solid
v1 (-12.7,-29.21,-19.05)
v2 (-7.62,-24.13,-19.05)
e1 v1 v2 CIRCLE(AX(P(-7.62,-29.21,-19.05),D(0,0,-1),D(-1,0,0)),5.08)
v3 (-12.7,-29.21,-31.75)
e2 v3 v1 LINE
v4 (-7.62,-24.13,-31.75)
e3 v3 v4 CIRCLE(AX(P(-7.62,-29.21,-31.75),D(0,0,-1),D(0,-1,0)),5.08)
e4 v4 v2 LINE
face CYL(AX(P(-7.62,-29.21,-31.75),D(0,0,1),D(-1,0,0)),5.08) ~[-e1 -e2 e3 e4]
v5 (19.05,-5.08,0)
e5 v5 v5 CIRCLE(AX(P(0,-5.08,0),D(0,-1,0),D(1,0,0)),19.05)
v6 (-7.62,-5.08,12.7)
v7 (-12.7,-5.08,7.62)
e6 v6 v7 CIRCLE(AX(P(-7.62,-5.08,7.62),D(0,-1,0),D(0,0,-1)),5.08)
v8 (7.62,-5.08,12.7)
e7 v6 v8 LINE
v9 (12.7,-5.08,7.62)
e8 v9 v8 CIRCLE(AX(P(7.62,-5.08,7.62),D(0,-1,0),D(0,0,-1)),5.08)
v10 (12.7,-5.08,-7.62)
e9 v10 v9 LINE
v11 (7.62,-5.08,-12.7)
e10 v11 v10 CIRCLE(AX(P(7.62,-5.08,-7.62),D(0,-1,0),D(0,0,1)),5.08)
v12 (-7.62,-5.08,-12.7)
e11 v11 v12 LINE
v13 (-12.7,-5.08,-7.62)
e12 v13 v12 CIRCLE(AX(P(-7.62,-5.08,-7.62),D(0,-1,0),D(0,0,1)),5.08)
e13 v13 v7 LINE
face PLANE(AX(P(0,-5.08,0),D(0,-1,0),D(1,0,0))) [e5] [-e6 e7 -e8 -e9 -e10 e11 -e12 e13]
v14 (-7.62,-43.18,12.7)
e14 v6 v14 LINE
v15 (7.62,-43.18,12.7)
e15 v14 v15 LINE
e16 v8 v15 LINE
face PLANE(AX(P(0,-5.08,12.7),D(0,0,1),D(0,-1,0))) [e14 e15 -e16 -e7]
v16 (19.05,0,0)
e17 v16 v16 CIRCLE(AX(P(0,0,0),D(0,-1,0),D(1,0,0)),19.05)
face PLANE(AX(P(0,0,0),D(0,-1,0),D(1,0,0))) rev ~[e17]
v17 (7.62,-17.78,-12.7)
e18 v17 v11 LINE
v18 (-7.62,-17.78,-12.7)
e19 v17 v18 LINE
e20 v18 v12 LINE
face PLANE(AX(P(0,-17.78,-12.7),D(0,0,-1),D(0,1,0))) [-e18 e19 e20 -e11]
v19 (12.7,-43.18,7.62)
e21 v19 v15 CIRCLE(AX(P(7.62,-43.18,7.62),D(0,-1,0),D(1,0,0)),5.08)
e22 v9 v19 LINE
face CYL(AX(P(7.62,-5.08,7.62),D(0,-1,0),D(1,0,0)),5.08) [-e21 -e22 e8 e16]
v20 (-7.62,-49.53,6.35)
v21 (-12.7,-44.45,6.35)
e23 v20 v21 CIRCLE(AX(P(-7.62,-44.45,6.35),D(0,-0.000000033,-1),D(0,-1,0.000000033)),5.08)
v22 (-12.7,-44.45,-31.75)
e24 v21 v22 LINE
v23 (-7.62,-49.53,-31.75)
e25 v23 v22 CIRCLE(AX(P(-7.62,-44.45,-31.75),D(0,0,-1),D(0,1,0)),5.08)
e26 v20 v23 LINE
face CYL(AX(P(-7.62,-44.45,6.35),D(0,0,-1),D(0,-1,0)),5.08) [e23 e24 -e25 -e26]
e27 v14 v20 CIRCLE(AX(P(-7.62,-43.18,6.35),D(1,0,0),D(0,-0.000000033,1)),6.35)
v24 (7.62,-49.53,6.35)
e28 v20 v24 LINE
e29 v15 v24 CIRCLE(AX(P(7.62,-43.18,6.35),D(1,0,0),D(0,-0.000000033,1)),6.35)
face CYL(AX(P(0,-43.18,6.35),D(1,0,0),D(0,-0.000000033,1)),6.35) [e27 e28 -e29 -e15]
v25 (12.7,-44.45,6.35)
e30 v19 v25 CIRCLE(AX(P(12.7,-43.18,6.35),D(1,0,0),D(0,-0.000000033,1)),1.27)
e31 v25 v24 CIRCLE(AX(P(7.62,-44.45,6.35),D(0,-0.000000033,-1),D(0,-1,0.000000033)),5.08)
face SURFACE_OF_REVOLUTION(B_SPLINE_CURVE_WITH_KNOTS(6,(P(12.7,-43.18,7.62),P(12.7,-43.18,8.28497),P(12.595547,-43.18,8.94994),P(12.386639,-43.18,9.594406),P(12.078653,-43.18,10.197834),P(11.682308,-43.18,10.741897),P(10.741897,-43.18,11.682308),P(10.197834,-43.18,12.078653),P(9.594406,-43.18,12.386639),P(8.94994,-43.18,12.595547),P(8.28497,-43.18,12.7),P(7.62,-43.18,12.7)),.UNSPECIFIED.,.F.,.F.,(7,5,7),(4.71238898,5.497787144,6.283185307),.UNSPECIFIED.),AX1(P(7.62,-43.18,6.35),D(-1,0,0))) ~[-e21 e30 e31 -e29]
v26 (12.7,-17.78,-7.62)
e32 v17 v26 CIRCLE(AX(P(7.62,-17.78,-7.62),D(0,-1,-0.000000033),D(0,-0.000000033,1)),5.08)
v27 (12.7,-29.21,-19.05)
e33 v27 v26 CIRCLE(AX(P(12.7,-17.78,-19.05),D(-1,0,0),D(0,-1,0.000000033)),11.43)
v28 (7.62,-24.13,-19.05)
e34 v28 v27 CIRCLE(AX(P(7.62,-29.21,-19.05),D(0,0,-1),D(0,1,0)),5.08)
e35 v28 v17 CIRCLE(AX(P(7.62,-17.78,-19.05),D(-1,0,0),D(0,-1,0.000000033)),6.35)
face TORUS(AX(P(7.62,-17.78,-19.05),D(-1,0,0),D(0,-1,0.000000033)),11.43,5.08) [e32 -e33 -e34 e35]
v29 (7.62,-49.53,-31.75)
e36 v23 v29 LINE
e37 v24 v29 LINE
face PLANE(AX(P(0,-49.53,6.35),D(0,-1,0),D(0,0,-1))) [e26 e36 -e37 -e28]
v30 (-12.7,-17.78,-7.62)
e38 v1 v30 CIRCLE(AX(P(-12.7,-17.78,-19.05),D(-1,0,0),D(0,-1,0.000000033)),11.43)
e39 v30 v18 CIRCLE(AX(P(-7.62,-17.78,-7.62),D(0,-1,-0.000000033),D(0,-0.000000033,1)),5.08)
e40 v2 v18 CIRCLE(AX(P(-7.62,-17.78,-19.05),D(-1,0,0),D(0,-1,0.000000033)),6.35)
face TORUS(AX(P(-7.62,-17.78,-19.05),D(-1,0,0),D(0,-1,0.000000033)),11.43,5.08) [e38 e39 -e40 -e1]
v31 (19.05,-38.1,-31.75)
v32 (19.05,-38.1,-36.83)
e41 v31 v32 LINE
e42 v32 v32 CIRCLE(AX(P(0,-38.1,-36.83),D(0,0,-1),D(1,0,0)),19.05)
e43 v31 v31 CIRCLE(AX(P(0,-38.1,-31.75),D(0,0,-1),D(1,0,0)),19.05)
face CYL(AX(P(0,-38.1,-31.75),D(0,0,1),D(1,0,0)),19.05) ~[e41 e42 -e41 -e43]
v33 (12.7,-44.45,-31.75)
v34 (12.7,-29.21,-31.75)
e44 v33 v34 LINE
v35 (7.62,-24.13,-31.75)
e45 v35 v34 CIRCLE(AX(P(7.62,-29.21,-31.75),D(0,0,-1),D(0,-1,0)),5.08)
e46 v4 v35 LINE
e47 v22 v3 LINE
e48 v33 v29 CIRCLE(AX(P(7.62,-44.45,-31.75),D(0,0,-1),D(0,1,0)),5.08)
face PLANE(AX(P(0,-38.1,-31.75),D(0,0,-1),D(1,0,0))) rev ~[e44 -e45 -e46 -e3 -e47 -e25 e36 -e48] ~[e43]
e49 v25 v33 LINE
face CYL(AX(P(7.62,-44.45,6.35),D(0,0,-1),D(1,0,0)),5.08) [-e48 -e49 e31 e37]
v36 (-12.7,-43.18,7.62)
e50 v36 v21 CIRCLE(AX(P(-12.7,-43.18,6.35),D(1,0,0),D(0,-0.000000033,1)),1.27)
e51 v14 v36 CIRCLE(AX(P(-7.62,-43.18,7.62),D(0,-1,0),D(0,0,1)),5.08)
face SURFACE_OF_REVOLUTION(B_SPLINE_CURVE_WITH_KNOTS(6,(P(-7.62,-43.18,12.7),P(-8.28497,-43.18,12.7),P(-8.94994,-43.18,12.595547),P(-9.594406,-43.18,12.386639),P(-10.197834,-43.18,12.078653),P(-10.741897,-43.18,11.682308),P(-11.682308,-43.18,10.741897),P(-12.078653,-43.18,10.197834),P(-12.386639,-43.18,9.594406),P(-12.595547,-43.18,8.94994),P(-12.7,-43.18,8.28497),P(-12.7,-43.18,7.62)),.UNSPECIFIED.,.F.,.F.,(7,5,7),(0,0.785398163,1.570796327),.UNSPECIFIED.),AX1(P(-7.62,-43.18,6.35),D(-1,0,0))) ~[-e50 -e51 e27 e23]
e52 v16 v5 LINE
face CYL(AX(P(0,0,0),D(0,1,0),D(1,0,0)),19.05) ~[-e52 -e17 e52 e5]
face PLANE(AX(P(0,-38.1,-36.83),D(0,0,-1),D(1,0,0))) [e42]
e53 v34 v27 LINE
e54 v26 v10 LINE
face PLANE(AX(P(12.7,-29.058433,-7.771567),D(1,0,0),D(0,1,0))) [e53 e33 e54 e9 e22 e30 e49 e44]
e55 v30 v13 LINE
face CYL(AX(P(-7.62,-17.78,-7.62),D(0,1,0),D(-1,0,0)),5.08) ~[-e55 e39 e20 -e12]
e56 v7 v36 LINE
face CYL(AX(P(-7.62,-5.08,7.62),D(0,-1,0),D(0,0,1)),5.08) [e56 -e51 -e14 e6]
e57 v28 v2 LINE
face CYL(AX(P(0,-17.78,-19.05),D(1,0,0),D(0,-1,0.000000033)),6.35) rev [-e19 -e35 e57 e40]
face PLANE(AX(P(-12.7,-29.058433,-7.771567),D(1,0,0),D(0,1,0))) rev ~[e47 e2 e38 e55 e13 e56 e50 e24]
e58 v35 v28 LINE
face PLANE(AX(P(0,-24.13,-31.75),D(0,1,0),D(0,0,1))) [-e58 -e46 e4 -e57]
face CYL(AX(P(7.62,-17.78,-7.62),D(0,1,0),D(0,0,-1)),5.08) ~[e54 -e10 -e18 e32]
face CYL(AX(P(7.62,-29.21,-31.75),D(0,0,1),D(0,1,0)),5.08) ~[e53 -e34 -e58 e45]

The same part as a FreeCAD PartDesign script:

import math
import FreeCAD as App
import Part
import Sketcher

V = App.Vector
Q = App.Units.Quantity


def edges_at(feature, points):
    """Names of the edges that pass closest to the given points."""
    edges = feature.Shape.Edges
    near = lambda p: min(range(len(edges)), key=lambda i: edges[i].distToShape(Part.Vertex(*p))[0])
    return sorted({f"Edge{near(p) + 1}" for p in points})

doc = App.newDocument("Part")
params = doc.addObject("Spreadsheet::Sheet", "Params")
for row, (alias, value) in enumerate([
    ("sketch1_diameter", "1.5 in"),
    ("pad1_length", "0.2 in"),
    ("sketch2_width", "1 in"),
    ("sketch2_radius", "0.25 in"),
    ("sketch2_width2", "1.5 in"),
    ("pad2_length", "1 in"),
    ("fillet_radius", "0.2 in"),
    ("sketch3_diameter", "1.5 in"),
    ("pad3_length", "0.2 in"),
], start=1):
    params.set(f"A{row}", alias)
    params.set(f"B{row}", "=" + value)
    params.setAlias(f"B{row}", alias)

body = doc.addObject("PartDesign::Body", "Body")

# Sketch on XZ plane
sketch1 = doc.addObject("Sketcher::SketchObject", "Sketch")
body.addObject(sketch1)
sketch1.AttachmentSupport = (doc.XZ_Plane, [""])
sketch1.MapMode = "FlatFace"
sketch1.addGeometry(Part.Circle(V(0, 0, 0), V(0, 0, 1), 19.05), False)
sketch1.addConstraint(Sketcher.Constraint("Coincident", 0, 3, -1, 1))
sketch1.addConstraint(Sketcher.Constraint("Diameter", 0, Q("1.5 in")))
sketch1.setExpression("Constraints[1]", "Params.sketch1_diameter")
pad1 = doc.addObject("PartDesign::Pad", "Pad")
body.addObject(pad1)
pad1.Profile = sketch1
pad1.setExpression("Length", "Params.pad1_length")

# Sketch on YZ plane
sketch2 = doc.addObject("Sketcher::SketchObject", "Sketch001")
body.addObject(sketch2)
sketch2.AttachmentSupport = (doc.YZ_Plane, [""])
sketch2.MapMode = "FlatFace"
sketch2.addGeometry(Part.LineSegment(V(-5.08, -12.7, 0), V(-5.08, 12.7, 0)), False)
sketch2.addGeometry(Part.LineSegment(V(-5.08, 12.7, 0), V(-43.18, 12.7, 0)), False)
sketch2.addGeometry(Part.ArcOfCircle(Part.Circle(V(-43.18, 6.35, 0), V(0, 0, 1), 6.35), math.radians(90.000002), math.radians(179.999998)), False)
sketch2.addGeometry(Part.LineSegment(V(-49.53, 6.35, 0), V(-49.53, -31.75, 0)), False)
sketch2.addGeometry(Part.LineSegment(V(-49.53, -31.75, 0), V(-24.13, -31.75, 0)), False)
sketch2.addGeometry(Part.LineSegment(V(-24.13, -31.75, 0), V(-24.13, -19.05, 0)), False)
sketch2.addGeometry(Part.ArcOfCircle(Part.Circle(V(-17.78, -19.05, 0), V(0, 0, 1), 6.35), math.radians(90.000002), math.radians(179.999998)), False)
sketch2.addGeometry(Part.LineSegment(V(-17.78, -12.7, 0), V(-5.08, -12.7, 0)), False)
sketch2.addConstraint(Sketcher.Constraint("Coincident", 0, 2, 1, 1))
sketch2.addConstraint(Sketcher.Constraint("Tangent", 1, 2, 2, 1))
sketch2.addConstraint(Sketcher.Constraint("Tangent", 2, 2, 3, 1))
sketch2.addConstraint(Sketcher.Constraint("Coincident", 3, 2, 4, 1))
sketch2.addConstraint(Sketcher.Constraint("Coincident", 4, 2, 5, 1))
sketch2.addConstraint(Sketcher.Constraint("Tangent", 5, 2, 6, 2))
sketch2.addConstraint(Sketcher.Constraint("Tangent", 6, 1, 7, 1))
sketch2.addConstraint(Sketcher.Constraint("Coincident", 7, 2, 0, 1))
sketch2.addConstraint(Sketcher.Constraint("Vertical", 0))
sketch2.addConstraint(Sketcher.Constraint("Horizontal", 1))
sketch2.addConstraint(Sketcher.Constraint("Vertical", 3))
sketch2.addConstraint(Sketcher.Constraint("Horizontal", 4))
sketch2.addConstraint(Sketcher.Constraint("Vertical", 5))
sketch2.addConstraint(Sketcher.Constraint("Horizontal", 7))
sketch2.addConstraint(Sketcher.Constraint("Equal", 2, 6))
sketch2.addConstraint(Sketcher.Constraint("Equal", 4, 0))
sketch2.addConstraint(Sketcher.Constraint("Equal", 1, 3))
sketch2.addConstraint(Sketcher.Constraint("DistanceX", 4, 1, 4, 2, Q("1 in")))
sketch2.addConstraint(Sketcher.Constraint("Radius", 2, Q("0.25 in")))
sketch2.addConstraint(Sketcher.Constraint("DistanceX", 1, 2, 1, 1, Q("1.5 in")))
sketch2.addConstraint(Sketcher.Constraint("DistanceX", 2, 3, -1, 1, Q("1.7 in")))
sketch2.addConstraint(Sketcher.Constraint("DistanceY", -1, 1, 0, 2, Q("0.5 in")))
sketch2.setExpression("Constraints[17]", "Params.sketch2_width")
sketch2.setExpression("Constraints[18]", "Params.sketch2_radius")
sketch2.setExpression("Constraints[19]", "Params.sketch2_width2")
pad2 = doc.addObject("PartDesign::Pad", "Pad001")
body.addObject(pad2)
pad2.Profile = sketch2
pad2.setExpression("Length", "Params.pad2_length")
pad2.Midplane = True
doc.recompute()

fillet = doc.addObject("PartDesign::Fillet", "Fillet")
body.addObject(fillet)
fillet.Base = (pad2, edges_at(pad2, [
    (-12.7, -24.13, 12.7),
    (12.7, -24.13, 12.7),
    (12.7, -11.43, -12.7),
    (-12.7, -24.13, -25.4),
]))
fillet.setExpression("Radius", "Params.fillet_radius")

# Sketch on XY plane
sketch3 = doc.addObject("Sketcher::SketchObject", "Sketch002")
body.addObject(sketch3)
sketch3.AttachmentSupport = (doc.XY_Plane, [""])
sketch3.MapMode = "FlatFace"
sketch3.AttachmentOffset = App.Placement(V(0, 0, -1.25 * 25.4), App.Rotation())
sketch3.addGeometry(Part.Circle(V(0, -38.1, 0), V(0, 0, 1), 19.05), False)
sketch3.addConstraint(Sketcher.Constraint("PointOnObject", 0, 3, -2))
sketch3.addConstraint(Sketcher.Constraint("Diameter", 0, Q("1.5 in")))
sketch3.addConstraint(Sketcher.Constraint("DistanceY", 0, 3, -1, 1, Q("1.5 in")))
sketch3.setExpression("Constraints[1]", "Params.sketch3_diameter")
pad3 = doc.addObject("PartDesign::Pad", "Pad002")
body.addObject(pad3)
pad3.Profile = sketch3
pad3.setExpression("Length", "Params.pad3_length")
pad3.Reversed = True

doc.recompute()
